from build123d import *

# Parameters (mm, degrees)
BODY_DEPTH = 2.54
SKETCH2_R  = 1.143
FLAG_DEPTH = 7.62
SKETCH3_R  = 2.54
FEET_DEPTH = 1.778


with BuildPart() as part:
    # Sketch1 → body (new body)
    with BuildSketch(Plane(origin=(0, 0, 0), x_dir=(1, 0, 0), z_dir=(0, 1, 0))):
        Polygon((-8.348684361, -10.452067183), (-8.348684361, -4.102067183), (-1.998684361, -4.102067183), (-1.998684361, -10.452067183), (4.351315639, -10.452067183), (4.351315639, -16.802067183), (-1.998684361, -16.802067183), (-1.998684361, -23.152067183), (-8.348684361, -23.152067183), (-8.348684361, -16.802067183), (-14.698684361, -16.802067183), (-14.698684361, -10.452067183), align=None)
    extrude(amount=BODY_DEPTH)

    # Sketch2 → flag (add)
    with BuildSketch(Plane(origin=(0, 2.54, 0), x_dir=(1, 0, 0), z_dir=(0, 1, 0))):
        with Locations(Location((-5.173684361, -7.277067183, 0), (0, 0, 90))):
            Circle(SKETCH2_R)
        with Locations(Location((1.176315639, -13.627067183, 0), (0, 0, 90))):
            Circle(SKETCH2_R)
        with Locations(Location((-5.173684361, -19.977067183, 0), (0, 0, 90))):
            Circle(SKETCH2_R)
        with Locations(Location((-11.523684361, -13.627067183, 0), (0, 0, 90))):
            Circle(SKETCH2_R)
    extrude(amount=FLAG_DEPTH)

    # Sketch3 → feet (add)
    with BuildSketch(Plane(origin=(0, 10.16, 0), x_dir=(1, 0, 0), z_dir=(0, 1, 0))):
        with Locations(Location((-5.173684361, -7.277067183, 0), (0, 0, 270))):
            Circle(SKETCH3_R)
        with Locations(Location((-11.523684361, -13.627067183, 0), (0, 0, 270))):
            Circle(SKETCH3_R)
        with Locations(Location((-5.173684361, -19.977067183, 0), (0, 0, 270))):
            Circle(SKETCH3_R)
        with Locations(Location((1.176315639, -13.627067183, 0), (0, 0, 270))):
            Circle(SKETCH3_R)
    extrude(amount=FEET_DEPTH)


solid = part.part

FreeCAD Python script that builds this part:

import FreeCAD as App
import Part
import Sketcher

V = App.Vector
Q = App.Units.Quantity


def add_polygon(sketch, points):
    """Adds a closed chain of lines whose ends are joined by coincident constraints."""
    first, n = sketch.GeometryCount, len(points)
    for a, b in zip(points, points[1:] + points[:1]):
        sketch.addGeometry(Part.LineSegment(App.Vector(*a, 0), App.Vector(*b, 0)), False)
    for i in range(n):
        sketch.addConstraint(Sketcher.Constraint("Coincident", first + i, 2, first + (i + 1) % n, 1))

doc = App.newDocument("Part")
body = doc.addObject("PartDesign::Body", "Body")

# Sketch on XZ plane
sketch1 = body.newObject("Sketcher::SketchObject", "Sketch")
sketch1.AttachmentSupport = (doc.getObject("XZ_Plane"), [""])
sketch1.MapMode = "FlatFace"
add_polygon(sketch1, [(-8.348684, 4.102067), (-8.348684, 10.452067), (-14.698684, 10.452067), (-14.698684, 16.802067), (-8.348684, 16.802067), (-8.348684, 23.152067), (-1.998684, 23.152067), (-1.998684, 16.802067), (4.351316, 16.802067), (4.351316, 10.452067), (-1.998684, 10.452067), (-1.998684, 4.102067)])  # lines 0-11
sketch1.addConstraint([
    Sketcher.Constraint("Vertical", 0),
    Sketcher.Constraint("Horizontal", 1),
    Sketcher.Constraint("Vertical", 2),
    Sketcher.Constraint("Horizontal", 3),
    Sketcher.Constraint("Vertical", 4),
    Sketcher.Constraint("Horizontal", 5),
    Sketcher.Constraint("Vertical", 6),
    Sketcher.Constraint("Horizontal", 7),
    Sketcher.Constraint("Vertical", 8),
    Sketcher.Constraint("Horizontal", 9),
    Sketcher.Constraint("Vertical", 10),
    Sketcher.Constraint("Horizontal", 11),
    Sketcher.Constraint("Horizontal", 3, 2, 6, 2),
    Sketcher.Constraint("Horizontal", 1, 2, 8, 2),
    Sketcher.Constraint("Vertical", 0, 2, 3, 2),
    Sketcher.Constraint("Vertical", 6, 2, 9, 2),
    Sketcher.Constraint("Equal", 3, 5),
    Sketcher.Constraint("Equal", 5, 7),
    Sketcher.Constraint("Equal", 11, 0),
    Sketcher.Constraint("Equal", 0, 2),
    Sketcher.Constraint("Equal", 2, 4),
    Sketcher.Constraint("DistanceX", 1, 2, 1, 1, Q("0.25 in")),
    Sketcher.Constraint("DistanceX", 0, 2, -1, 1, Q("8.348684 mm")),
    Sketcher.Constraint("DistanceY", -1, 1, 0, 2, Q("10.452067 mm")),
])
pad1 = body.newObject("PartDesign::Pad", "Pad")
pad1.Profile = sketch1
pad1.Length = Q("0.1 in")
pad1.Reversed = True

# Sketch on XZ plane
sketch2 = body.newObject("Sketcher::SketchObject", "Sketch001")
sketch2.AttachmentSupport = (doc.getObject("XZ_Plane"), [""])
sketch2.MapMode = "FlatFace"
sketch2.AttachmentOffset = App.Placement(V(0, 0, -0.1 * 25.4), App.Rotation())
sketch2.addGeometry([
    Part.Circle(V(-5.173684, 7.277067, 0), V(0, 0, 1), 1.143),
    Part.Circle(V(1.176316, 13.627067, 0), V(0, 0, 1), 1.143),
    Part.Circle(V(-5.173684, 19.977067, 0), V(0, 0, 1), 1.143),
    Part.Circle(V(-11.523684, 13.627067, 0), V(0, 0, 1), 1.143),
], False)
sketch2.addConstraint([
    Sketcher.Constraint("Equal", 0, 1),
    Sketcher.Constraint("Equal", 1, 2),
    Sketcher.Constraint("Equal", 2, 3),
    Sketcher.Constraint("Horizontal", 1, 3, 3, 3),
    Sketcher.Constraint("Vertical", 0, 3, 2, 3),
    Sketcher.Constraint("Diameter", 0, Q("0.09 in")),
    Sketcher.Constraint("DistanceY", 0, 3, 2, 3, Q("0.5 in")),
    Sketcher.Constraint("DistanceX", 3, 3, 1, 3, Q("0.5 in")),
    Sketcher.Constraint("DistanceX", 0, 3, 1, 3, Q("0.25 in")),
    Sketcher.Constraint("DistanceY", 0, 3, 1, 3, Q("0.25 in")),
    Sketcher.Constraint("DistanceX", 0, 3, -1, 1, Q("5.173684 mm")),
    Sketcher.Constraint("DistanceY", -1, 1, 0, 3, Q("7.277067 mm")),
])
pad2 = body.newObject("PartDesign::Pad", "Pad001")
pad2.Profile = sketch2
pad2.Length = Q("0.3 in")
pad2.Reversed = True

# Sketch on XZ plane
sketch3 = body.newObject("Sketcher::SketchObject", "Sketch002")
sketch3.AttachmentSupport = (doc.getObject("XZ_Plane"), [""])
sketch3.MapMode = "FlatFace"
sketch3.AttachmentOffset = App.Placement(V(0, 0, -0.4 * 25.4), App.Rotation())
sketch3.addGeometry([
    Part.Circle(V(-5.173684, 7.277067, 0), V(0, 0, 1), 2.54),
    Part.Circle(V(-11.523684, 13.627067, 0), V(0, 0, 1), 2.54),
    Part.Circle(V(-5.173684, 19.977067, 0), V(0, 0, 1), 2.54),
    Part.Circle(V(1.176316, 13.627067, 0), V(0, 0, 1), 2.54),
], False)
sketch3.addConstraint([
    Sketcher.Constraint("Equal", 0, 1),
    Sketcher.Constraint("Equal", 1, 2),
    Sketcher.Constraint("Equal", 2, 3),
    Sketcher.Constraint("Horizontal", 1, 3, 3, 3),
    Sketcher.Constraint("Vertical", 0, 3, 2, 3),
    Sketcher.Constraint("Diameter", 0, Q("0.2 in")),
    Sketcher.Constraint("DistanceY", 0, 3, 2, 3, Q("0.5 in")),
    Sketcher.Constraint("DistanceX", 1, 3, 3, 3, Q("0.5 in")),
    Sketcher.Constraint("DistanceX", 1, 3, 0, 3, Q("0.25 in")),
    Sketcher.Constraint("DistanceY", 0, 3, 1, 3, Q("0.25 in")),
    Sketcher.Constraint("DistanceX", 0, 3, -1, 1, Q("5.173684 mm")),
    Sketcher.Constraint("DistanceY", -1, 1, 0, 3, Q("7.277067 mm")),
])
pad3 = body.newObject("PartDesign::Pad", "Pad002")
pad3.Profile = sketch3
pad3.Length = Q("0.07 in")
pad3.Reversed = True

doc.recompute()
